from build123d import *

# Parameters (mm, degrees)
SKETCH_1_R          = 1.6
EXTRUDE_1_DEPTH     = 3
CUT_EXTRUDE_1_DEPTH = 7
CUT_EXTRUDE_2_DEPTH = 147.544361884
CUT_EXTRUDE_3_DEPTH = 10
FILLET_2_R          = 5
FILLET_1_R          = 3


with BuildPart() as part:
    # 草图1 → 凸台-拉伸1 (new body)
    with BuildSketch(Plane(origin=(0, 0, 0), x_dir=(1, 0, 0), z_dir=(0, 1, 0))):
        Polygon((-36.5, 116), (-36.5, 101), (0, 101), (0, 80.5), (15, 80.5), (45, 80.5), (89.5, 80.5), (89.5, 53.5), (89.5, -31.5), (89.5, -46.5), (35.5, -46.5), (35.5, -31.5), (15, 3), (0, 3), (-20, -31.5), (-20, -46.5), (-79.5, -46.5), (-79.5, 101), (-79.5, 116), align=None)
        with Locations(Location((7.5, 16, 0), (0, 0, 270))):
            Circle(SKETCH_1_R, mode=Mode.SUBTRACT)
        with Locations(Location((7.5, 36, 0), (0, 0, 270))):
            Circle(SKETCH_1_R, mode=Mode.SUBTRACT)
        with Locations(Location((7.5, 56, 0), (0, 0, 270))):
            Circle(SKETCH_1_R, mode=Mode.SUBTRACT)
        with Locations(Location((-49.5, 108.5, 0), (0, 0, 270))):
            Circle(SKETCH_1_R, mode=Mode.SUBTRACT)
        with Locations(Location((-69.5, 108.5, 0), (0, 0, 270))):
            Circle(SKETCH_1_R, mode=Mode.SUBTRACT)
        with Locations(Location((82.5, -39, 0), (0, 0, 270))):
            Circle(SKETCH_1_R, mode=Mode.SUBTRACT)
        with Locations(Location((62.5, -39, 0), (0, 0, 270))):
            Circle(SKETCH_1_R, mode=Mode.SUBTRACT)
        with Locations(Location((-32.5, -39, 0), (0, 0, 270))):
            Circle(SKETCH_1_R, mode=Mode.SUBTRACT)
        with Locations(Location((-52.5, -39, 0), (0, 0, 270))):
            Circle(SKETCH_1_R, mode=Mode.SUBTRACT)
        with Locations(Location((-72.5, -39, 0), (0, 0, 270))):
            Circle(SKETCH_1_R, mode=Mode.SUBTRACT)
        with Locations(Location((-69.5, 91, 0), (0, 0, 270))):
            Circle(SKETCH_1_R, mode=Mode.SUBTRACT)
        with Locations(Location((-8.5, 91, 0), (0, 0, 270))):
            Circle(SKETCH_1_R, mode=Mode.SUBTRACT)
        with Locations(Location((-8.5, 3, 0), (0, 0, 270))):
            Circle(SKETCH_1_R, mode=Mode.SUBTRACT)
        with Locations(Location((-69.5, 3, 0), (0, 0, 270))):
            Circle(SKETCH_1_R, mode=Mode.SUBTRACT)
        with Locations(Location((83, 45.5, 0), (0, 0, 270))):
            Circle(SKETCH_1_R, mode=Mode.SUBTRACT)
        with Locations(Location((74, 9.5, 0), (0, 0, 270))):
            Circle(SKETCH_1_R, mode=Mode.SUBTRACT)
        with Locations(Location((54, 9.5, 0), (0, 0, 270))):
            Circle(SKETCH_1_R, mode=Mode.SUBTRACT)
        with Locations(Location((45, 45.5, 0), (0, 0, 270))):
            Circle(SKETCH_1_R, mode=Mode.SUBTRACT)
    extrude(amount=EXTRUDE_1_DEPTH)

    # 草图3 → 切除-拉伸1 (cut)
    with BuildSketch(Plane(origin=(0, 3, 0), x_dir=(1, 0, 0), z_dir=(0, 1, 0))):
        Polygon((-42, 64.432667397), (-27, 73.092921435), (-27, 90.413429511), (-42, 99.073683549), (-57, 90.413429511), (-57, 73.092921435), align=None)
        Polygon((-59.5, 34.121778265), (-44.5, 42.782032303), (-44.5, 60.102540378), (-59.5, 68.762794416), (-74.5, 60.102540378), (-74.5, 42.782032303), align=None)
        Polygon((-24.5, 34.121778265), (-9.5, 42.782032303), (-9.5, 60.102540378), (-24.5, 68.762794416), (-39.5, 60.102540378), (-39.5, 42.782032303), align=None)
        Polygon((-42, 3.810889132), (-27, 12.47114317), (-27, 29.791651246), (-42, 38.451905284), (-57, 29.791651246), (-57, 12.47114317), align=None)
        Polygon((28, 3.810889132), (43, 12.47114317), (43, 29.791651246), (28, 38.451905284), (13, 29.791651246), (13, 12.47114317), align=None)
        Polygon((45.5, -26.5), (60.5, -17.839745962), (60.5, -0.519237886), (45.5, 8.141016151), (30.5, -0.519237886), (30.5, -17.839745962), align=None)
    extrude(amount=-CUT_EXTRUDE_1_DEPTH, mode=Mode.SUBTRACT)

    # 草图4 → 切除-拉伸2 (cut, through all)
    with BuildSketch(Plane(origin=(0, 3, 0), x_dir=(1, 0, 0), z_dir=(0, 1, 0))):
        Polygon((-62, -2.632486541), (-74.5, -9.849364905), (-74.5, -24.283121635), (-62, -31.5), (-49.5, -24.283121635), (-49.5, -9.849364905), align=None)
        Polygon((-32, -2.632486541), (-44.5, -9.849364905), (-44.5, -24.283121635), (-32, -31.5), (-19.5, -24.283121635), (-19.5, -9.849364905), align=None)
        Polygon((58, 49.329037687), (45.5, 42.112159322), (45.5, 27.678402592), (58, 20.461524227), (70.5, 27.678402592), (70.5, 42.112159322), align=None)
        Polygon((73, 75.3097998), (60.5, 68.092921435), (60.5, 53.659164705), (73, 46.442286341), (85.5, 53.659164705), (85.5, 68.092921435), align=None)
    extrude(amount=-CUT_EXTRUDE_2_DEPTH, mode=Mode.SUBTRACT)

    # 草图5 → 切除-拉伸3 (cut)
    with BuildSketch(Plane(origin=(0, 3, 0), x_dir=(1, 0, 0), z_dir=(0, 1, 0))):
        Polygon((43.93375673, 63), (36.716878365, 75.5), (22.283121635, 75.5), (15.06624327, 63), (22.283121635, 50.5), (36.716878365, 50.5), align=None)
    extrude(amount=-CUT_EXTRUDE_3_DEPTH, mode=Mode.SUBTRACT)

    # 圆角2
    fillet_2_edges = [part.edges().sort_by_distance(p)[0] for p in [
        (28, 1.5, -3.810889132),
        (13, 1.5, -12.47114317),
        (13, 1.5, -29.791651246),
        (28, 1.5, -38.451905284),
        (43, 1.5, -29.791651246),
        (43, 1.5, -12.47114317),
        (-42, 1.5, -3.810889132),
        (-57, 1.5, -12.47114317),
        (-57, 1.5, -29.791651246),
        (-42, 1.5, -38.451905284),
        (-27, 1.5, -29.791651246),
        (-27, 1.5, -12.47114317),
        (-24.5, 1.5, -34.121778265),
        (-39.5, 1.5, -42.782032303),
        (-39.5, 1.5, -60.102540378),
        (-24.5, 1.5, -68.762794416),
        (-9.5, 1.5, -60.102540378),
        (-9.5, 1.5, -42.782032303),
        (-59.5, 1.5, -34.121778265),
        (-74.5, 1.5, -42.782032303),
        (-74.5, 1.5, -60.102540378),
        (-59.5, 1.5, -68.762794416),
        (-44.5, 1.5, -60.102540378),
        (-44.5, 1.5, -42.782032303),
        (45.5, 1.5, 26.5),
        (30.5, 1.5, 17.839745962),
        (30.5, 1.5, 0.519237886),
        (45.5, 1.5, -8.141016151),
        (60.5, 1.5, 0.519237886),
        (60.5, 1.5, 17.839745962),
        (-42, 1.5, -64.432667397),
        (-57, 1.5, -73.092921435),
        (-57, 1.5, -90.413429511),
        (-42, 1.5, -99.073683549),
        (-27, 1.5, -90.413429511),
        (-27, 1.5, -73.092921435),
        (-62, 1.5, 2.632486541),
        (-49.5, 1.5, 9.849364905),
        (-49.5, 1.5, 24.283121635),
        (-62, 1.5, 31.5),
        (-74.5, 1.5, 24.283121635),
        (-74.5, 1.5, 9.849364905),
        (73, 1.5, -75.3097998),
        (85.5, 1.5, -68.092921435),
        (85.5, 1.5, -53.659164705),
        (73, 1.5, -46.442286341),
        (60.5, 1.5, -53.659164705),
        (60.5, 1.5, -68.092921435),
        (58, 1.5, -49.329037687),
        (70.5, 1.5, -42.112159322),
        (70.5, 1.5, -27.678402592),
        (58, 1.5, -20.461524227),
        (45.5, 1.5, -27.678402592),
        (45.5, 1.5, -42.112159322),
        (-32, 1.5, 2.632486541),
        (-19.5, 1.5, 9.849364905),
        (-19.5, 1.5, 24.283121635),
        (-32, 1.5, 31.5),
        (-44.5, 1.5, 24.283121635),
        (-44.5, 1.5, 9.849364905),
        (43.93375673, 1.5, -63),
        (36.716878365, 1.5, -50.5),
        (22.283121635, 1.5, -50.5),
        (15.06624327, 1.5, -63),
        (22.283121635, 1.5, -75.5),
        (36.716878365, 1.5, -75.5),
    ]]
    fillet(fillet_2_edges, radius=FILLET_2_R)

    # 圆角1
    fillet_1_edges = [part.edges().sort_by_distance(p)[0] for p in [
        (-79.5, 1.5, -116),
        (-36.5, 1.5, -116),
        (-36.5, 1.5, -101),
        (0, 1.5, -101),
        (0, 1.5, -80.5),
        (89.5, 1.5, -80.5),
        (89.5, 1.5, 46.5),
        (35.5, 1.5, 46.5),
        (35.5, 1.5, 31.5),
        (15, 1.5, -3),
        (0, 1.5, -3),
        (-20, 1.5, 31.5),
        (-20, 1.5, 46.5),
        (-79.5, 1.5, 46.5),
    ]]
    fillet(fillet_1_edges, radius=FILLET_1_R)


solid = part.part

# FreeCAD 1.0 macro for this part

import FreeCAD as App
import Part
import Sketcher
from FreeCAD import Vector
Q = App.Units.Quantity


def edges_at(feature, points):
    """Names of the edges that pass closest to the given points."""
    edges = feature.Shape.Edges
    near = lambda p: min(range(len(edges)), key=lambda i: edges[i].distToShape(Part.Vertex(*p))[0])
    return sorted({f"Edge{near(p) + 1}" for p in points})

doc = App.newDocument("Part")
body = doc.addObject("PartDesign::Body", "Body")

# Sketch on XZ plane
sketch1 = body.newObject("Sketcher::SketchObject", "Sketch")
sketch1.AttachmentSupport = (doc.getObject("XZ_Plane"), [""])
sketch1.MapMode = "FlatFace"
sketch1.addGeometry(Part.LineSegment(Vector(-36.5, -101, 0), Vector(-36.5, -116, 0)), False)
sketch1.addGeometry(Part.LineSegment(Vector(-36.5, -116, 0), Vector(-79.5, -116, 0)), False)
sketch1.addGeometry(Part.LineSegment(Vector(-79.5, -116, 0), Vector(-79.5, 46.5, 0)), False)
sketch1.addGeometry(Part.LineSegment(Vector(-79.5, 46.5, 0), Vector(-20, 46.5, 0)), False)
sketch1.addGeometry(Part.LineSegment(Vector(-20, 46.5, 0), Vector(-20, 31.5, 0)), False)
sketch1.addGeometry(Part.LineSegment(Vector(-20, 31.5, 0), Vector(0, -3, 0)), False)
sketch1.addGeometry(Part.LineSegment(Vector(0, -3, 0), Vector(15, -3, 0)), False)
sketch1.addGeometry(Part.LineSegment(Vector(15, -3, 0), Vector(35.5, 31.5, 0)), False)
sketch1.addGeometry(Part.LineSegment(Vector(35.5, 31.5, 0), Vector(35.5, 46.5, 0)), False)
sketch1.addGeometry(Part.LineSegment(Vector(35.5, 46.5, 0), Vector(89.5, 46.5, 0)), False)
sketch1.addGeometry(Part.LineSegment(Vector(89.5, 46.5, 0), Vector(89.5, -80.5, 0)), False)
sketch1.addGeometry(Part.LineSegment(Vector(89.5, -80.5, 0), Vector(0, -80.5, 0)), False)
sketch1.addGeometry(Part.LineSegment(Vector(0, -80.5, 0), Vector(0, -101, 0)), False)
sketch1.addGeometry(Part.LineSegment(Vector(0, -101, 0), Vector(-36.5, -101, 0)), False)
sketch1.addGeometry(Part.Circle(Vector(82.5, 39, 0), Vector(0, 0, 1), 1.6), False)
sketch1.addGeometry(Part.Circle(Vector(62.5, 39, 0), Vector(0, 0, 1), 1.6), False)
sketch1.addGeometry(Part.Circle(Vector(74, -9.5, 0), Vector(0, 0, 1), 1.6), False)
sketch1.addGeometry(Part.Circle(Vector(54, -9.5, 0), Vector(0, 0, 1), 1.6), False)
sketch1.addGeometry(Part.Circle(Vector(7.5, -16, 0), Vector(0, 0, 1), 1.6), False)
sketch1.addGeometry(Part.Circle(Vector(-32.5, 39, 0), Vector(0, 0, 1), 1.6), False)
sketch1.addGeometry(Part.Circle(Vector(-52.5, 39, 0), Vector(0, 0, 1), 1.6), False)
sketch1.addGeometry(Part.Circle(Vector(-72.5, 39, 0), Vector(0, 0, 1), 1.6), False)
sketch1.addGeometry(Part.Circle(Vector(-8.5, -3, 0), Vector(0, 0, 1), 1.6), False)
sketch1.addGeometry(Part.Circle(Vector(-69.5, -3, 0), Vector(0, 0, 1), 1.6), False)
sketch1.addGeometry(Part.Circle(Vector(83, -45.5, 0), Vector(0, 0, 1), 1.6), False)
sketch1.addGeometry(Part.Circle(Vector(45, -45.5, 0), Vector(0, 0, 1), 1.6), False)
sketch1.addGeometry(Part.Circle(Vector(7.5, -36, 0), Vector(0, 0, 1), 1.6), False)
sketch1.addGeometry(Part.Circle(Vector(7.5, -56, 0), Vector(0, 0, 1), 1.6), False)
sketch1.addGeometry(Part.Circle(Vector(-8.5, -91, 0), Vector(0, 0, 1), 1.6), False)
sketch1.addGeometry(Part.Circle(Vector(-69.5, -91, 0), Vector(0, 0, 1), 1.6), False)
sketch1.addGeometry(Part.Circle(Vector(-49.5, -108.5, 0), Vector(0, 0, 1), 1.6), False)
sketch1.addGeometry(Part.Circle(Vector(-69.5, -108.5, 0), Vector(0, 0, 1), 1.6), False)
sketch1.addConstraint(Sketcher.Constraint("Coincident", 0, 2, 1, 1))
sketch1.addConstraint(Sketcher.Constraint("Coincident", 1, 2, 2, 1))
sketch1.addConstraint(Sketcher.Constraint("Coincident", 2, 2, 3, 1))
sketch1.addConstraint(Sketcher.Constraint("Coincident", 3, 2, 4, 1))
sketch1.addConstraint(Sketcher.Constraint("Coincident", 4, 2, 5, 1))
sketch1.addConstraint(Sketcher.Constraint("Coincident", 5, 2, 6, 1))
sketch1.addConstraint(Sketcher.Constraint("Coincident", 6, 2, 7, 1))
sketch1.addConstraint(Sketcher.Constraint("Coincident", 7, 2, 8, 1))
sketch1.addConstraint(Sketcher.Constraint("Coincident", 8, 2, 9, 1))
sketch1.addConstraint(Sketcher.Constraint("Coincident", 9, 2, 10, 1))
sketch1.addConstraint(Sketcher.Constraint("Coincident", 10, 2, 11, 1))
sketch1.addConstraint(Sketcher.Constraint("Coincident", 11, 2, 12, 1))
sketch1.addConstraint(Sketcher.Constraint("Coincident", 12, 2, 13, 1))
sketch1.addConstraint(Sketcher.Constraint("Coincident", 13, 2, 0, 1))
sketch1.addConstraint(Sketcher.Constraint("Vertical", 0))
sketch1.addConstraint(Sketcher.Constraint("Horizontal", 1))
sketch1.addConstraint(Sketcher.Constraint("Vertical", 2))
sketch1.addConstraint(Sketcher.Constraint("Horizontal", 3))
sketch1.addConstraint(Sketcher.Constraint("Vertical", 4))
sketch1.addConstraint(Sketcher.Constraint("Horizontal", 6))
sketch1.addConstraint(Sketcher.Constraint("Vertical", 8))
sketch1.addConstraint(Sketcher.Constraint("Horizontal", 9))
sketch1.addConstraint(Sketcher.Constraint("Vertical", 10))
sketch1.addConstraint(Sketcher.Constraint("Horizontal", 11))
sketch1.addConstraint(Sketcher.Constraint("Vertical", 12))
sketch1.addConstraint(Sketcher.Constraint("Horizontal", 13))
sketch1.addConstraint(Sketcher.Constraint("Equal", 14, 15))
sketch1.addConstraint(Sketcher.Constraint("Equal", 15, 16))
sketch1.addConstraint(Sketcher.Constraint("Equal", 16, 17))
sketch1.addConstraint(Sketcher.Constraint("Equal", 17, 18))
sketch1.addConstraint(Sketcher.Constraint("Equal", 18, 19))
sketch1.addConstraint(Sketcher.Constraint("Equal", 19, 20))
sketch1.addConstraint(Sketcher.Constraint("Equal", 20, 21))
sketch1.addConstraint(Sketcher.Constraint("Equal", 21, 22))
sketch1.addConstraint(Sketcher.Constraint("Equal", 22, 23))
sketch1.addConstraint(Sketcher.Constraint("Equal", 23, 24))
sketch1.addConstraint(Sketcher.Constraint("Equal", 24, 25))
sketch1.addConstraint(Sketcher.Constraint("Equal", 25, 26))
sketch1.addConstraint(Sketcher.Constraint("Equal", 26, 27))
sketch1.addConstraint(Sketcher.Constraint("Equal", 27, 28))
sketch1.addConstraint(Sketcher.Constraint("Equal", 28, 29))
sketch1.addConstraint(Sketcher.Constraint("Equal", 29, 30))
sketch1.addConstraint(Sketcher.Constraint("Equal", 30, 31))
sketch1.addConstraint(Sketcher.Constraint("PointOnObject", 5, 2, -2))
sketch1.addConstraint(Sketcher.Constraint("PointOnObject", 11, 2, -2))
sketch1.addConstraint(Sketcher.Constraint("Horizontal", 14, 3, 15, 3))
sketch1.addConstraint(Sketcher.Constraint("Horizontal", 16, 3, 17, 3))
sketch1.addConstraint(Sketcher.Constraint("Horizontal", 15, 3, 19, 3))
sketch1.addConstraint(Sketcher.Constraint("Horizontal", 19, 3, 20, 3))
sketch1.addConstraint(Sketcher.Constraint("Horizontal", 20, 3, 21, 3))
sketch1.addConstraint(Sketcher.Constraint("Horizontal", 22, 3, 23, 3))
sketch1.addConstraint(Sketcher.Constraint("Horizontal", 24, 3, 25, 3))
sketch1.addConstraint(Sketcher.Constraint("Horizontal", 28, 3, 29, 3))
sketch1.addConstraint(Sketcher.Constraint("Horizontal", 30, 3, 31, 3))
sketch1.addConstraint(Sketcher.Constraint("Horizontal", 23, 3, 5, 2))
sketch1.addConstraint(Sketcher.Constraint("Horizontal", 4, 2, 7, 2))
sketch1.addConstraint(Sketcher.Constraint("Horizontal", 3, 2, 8, 2))
sketch1.addConstraint(Sketcher.Constraint("Vertical", 18, 3, 26, 3))
sketch1.addConstraint(Sketcher.Constraint("Vertical", 26, 3, 27, 3))
sketch1.addConstraint(Sketcher.Constraint("Vertical", 22, 3, 28, 3))
sketch1.addConstraint(Sketcher.Constraint("Vertical", 23, 3, 29, 3))
sketch1.addConstraint(Sketcher.Constraint("Vertical", 29, 3, 31, 3))
sketch1.addConstraint(Sketcher.Constraint("Equal", 6, 0))
sketch1.addConstraint(Sketcher.Constraint("Equal", 0, 4))
sketch1.addConstraint(Sketcher.Constraint("Diameter", 14, 3.2))
sketch1.addConstraint(Sketcher.Constraint("DistanceX", 1, 2, 1, 1, 43.0))
sketch1.addConstraint(Sketcher.Constraint("DistanceX", 6, 1, 6, 2, 15.0))
sketch1.addConstraint(Sketcher.Constraint("DistanceX", 9, 1, 9, 2, 54.0))
sketch1.addConstraint(Sketcher.Constraint("DistanceY", 10, 2, 10, 1, 127.0))
sketch1.addConstraint(Sketcher.Constraint("DistanceX", 3, 1, 3, 2, 59.5))
sketch1.addConstraint(Sketcher.Constraint("DistanceX", 11, 2, 11, 1, 89.5))
sketch1.addConstraint(Sketcher.Constraint("DistanceX", 13, 2, 13, 1, 36.5))
sketch1.addConstraint(Sketcher.Constraint("DistanceY", 2, 1, 2, 2, 162.5))
sketch1.addConstraint(Sketcher.Constraint("DistanceY", -1, 1, 14, 3, 39.0))
sketch1.addConstraint(Sketcher.Constraint("DistanceX", -1, 1, 16, 3, 74.0))
sketch1.addConstraint(Sketcher.Constraint("DistanceX", -1, 1, 17, 3, 54.0))
sketch1.addConstraint(Sketcher.Constraint("DistanceY", 18, 3, -1, 1, 16.0))
sketch1.addConstraint(Sketcher.Constraint("DistanceY", 22, 3, -1, 1, 3.0))
sketch1.addConstraint(Sketcher.Constraint("DistanceX", -1, 1, 24, 3, 83.0))
sketch1.addConstraint(Sketcher.Constraint("DistanceX", -1, 1, 25, 3, 45.0))
sketch1.addConstraint(Sketcher.Constraint("DistanceY", 26, 3, -1, 1, 36.0))
sketch1.addConstraint(Sketcher.Constraint("DistanceY", 27, 3, -1, 1, 56.0))
sketch1.addConstraint(Sketcher.Constraint("DistanceY", 28, 3, -1, 1, 91.0))
sketch1.addConstraint(Sketcher.Constraint("DistanceY", 0, 2, -1, 1, 116.0))
sketch1.addConstraint(Sketcher.Constraint("DistanceX", 15, 3, 14, 3, 20.0))
sketch1.addConstraint(Sketcher.Constraint("DistanceX", 18, 3, 15, 3, 55.0))
sketch1.addConstraint(Sketcher.Constraint("DistanceX", 19, 3, 18, 3, 40.0))
sketch1.addConstraint(Sketcher.Constraint("DistanceX", 20, 3, 19, 3, 20.0))
sketch1.addConstraint(Sketcher.Constraint("DistanceX", 21, 3, 20, 3, 20.0))
sketch1.addConstraint(Sketcher.Constraint("DistanceX", 22, 3, 18, 3, 16.0))
sketch1.addConstraint(Sketcher.Constraint("DistanceX", 21, 3, 23, 3, 3.0))
sketch1.addConstraint(Sketcher.Constraint("DistanceY", 24, 3, 16, 3, 36.0))
sketch1.addConstraint(Sketcher.Constraint("DistanceX", 29, 3, 30, 3, 20.0))
sketch1.addConstraint(Sketcher.Constraint("DistanceX", 30, 3, 0, 2, 13.0))
sketch1.addConstraint(Sketcher.Constraint("DistanceY", 17, 3, 7, 2, 41.0))
sketch1.addConstraint(Sketcher.Constraint("DistanceY", 30, 3, 11, 2, 28.0))
pad1 = body.newObject("PartDesign::Pad", "Pad")
pad1.Profile = sketch1
pad1.Length = 3
pad1.Reversed = True

# Sketch on XZ plane
sketch2 = body.newObject("Sketcher::SketchObject", "Sketch001")
sketch2.AttachmentSupport = (doc.getObject("XZ_Plane"), [""])
sketch2.MapMode = "FlatFace"
sketch2.AttachmentOffset = App.Placement(Vector(0, 0, -3), App.Rotation())
sketch2.addGeometry(Part.LineSegment(Vector(-42, -64, 0), Vector(-27, -73, 0)), False)
sketch2.addGeometry(Part.LineSegment(Vector(-27, -73, 0), Vector(-27, -90, 0)), False)
sketch2.addGeometry(Part.LineSegment(Vector(-27, -90, 0), Vector(-42, -99, 0)), False)
sketch2.addGeometry(Part.LineSegment(Vector(-42, -99, 0), Vector(-57, -90, 0)), False)
sketch2.addGeometry(Part.LineSegment(Vector(-57, -90, 0), Vector(-57, -73, 0)), False)
sketch2.addGeometry(Part.LineSegment(Vector(-57, -73, 0), Vector(-42, -64, 0)), False)
sketch2.addGeometry(Part.LineSegment(Vector(-60, -34, 0), Vector(-44, -43, 0)), False)
sketch2.addGeometry(Part.LineSegment(Vector(-44, -43, 0), Vector(-44, -60, 0)), False)
sketch2.addGeometry(Part.LineSegment(Vector(-44, -60, 0), Vector(-60, -69, 0)), False)
sketch2.addGeometry(Part.LineSegment(Vector(-60, -69, 0), Vector(-74, -60, 0)), False)
sketch2.addGeometry(Part.LineSegment(Vector(-74, -60, 0), Vector(-74, -43, 0)), False)
sketch2.addGeometry(Part.LineSegment(Vector(-74, -43, 0), Vector(-60, -34, 0)), False)
sketch2.addGeometry(Part.LineSegment(Vector(-24, -34, 0), Vector(-10, -43, 0)), False)
sketch2.addGeometry(Part.LineSegment(Vector(-10, -43, 0), Vector(-10, -60, 0)), False)
sketch2.addGeometry(Part.LineSegment(Vector(-10, -60, 0), Vector(-24, -69, 0)), False)
sketch2.addGeometry(Part.LineSegment(Vector(-24, -69, 0), Vector(-40, -60, 0)), False)
sketch2.addGeometry(Part.LineSegment(Vector(-40, -60, 0), Vector(-40, -43, 0)), False)
sketch2.addGeometry(Part.LineSegment(Vector(-40, -43, 0), Vector(-24, -34, 0)), False)
sketch2.addGeometry(Part.LineSegment(Vector(-42, -4, 0), Vector(-27, -12, 0)), False)
sketch2.addGeometry(Part.LineSegment(Vector(-27, -12, 0), Vector(-27, -30, 0)), False)
sketch2.addGeometry(Part.LineSegment(Vector(-27, -30, 0), Vector(-42, -38, 0)), False)
sketch2.addGeometry(Part.LineSegment(Vector(-42, -38, 0), Vector(-57, -30, 0)), False)
sketch2.addGeometry(Part.LineSegment(Vector(-57, -30, 0), Vector(-57, -12, 0)), False)
sketch2.addGeometry(Part.LineSegment(Vector(-57, -12, 0), Vector(-42, -4, 0)), False)
sketch2.addGeometry(Part.LineSegment(Vector(28, -4, 0), Vector(43, -12, 0)), False)
sketch2.addGeometry(Part.LineSegment(Vector(43, -12, 0), Vector(43, -30, 0)), False)
sketch2.addGeometry(Part.LineSegment(Vector(43, -30, 0), Vector(28, -38, 0)), False)
sketch2.addGeometry(Part.LineSegment(Vector(28, -38, 0), Vector(13, -30, 0)), False)
sketch2.addGeometry(Part.LineSegment(Vector(13, -30, 0), Vector(13, -12, 0)), False)
sketch2.addGeometry(Part.LineSegment(Vector(13, -12, 0), Vector(28, -4, 0)), False)
sketch2.addGeometry(Part.LineSegment(Vector(46, 26, 0), Vector(60, 18, 0)), False)
sketch2.addGeometry(Part.LineSegment(Vector(60, 18, 0), Vector(60, 1, 0)), False)
sketch2.addGeometry(Part.LineSegment(Vector(60, 1, 0), Vector(46, -8, 0)), False)
sketch2.addGeometry(Part.LineSegment(Vector(46, -8, 0), Vector(30, 1, 0)), False)
sketch2.addGeometry(Part.LineSegment(Vector(30, 1, 0), Vector(30, 18, 0)), False)
sketch2.addGeometry(Part.LineSegment(Vector(30, 18, 0), Vector(46, 26, 0)), False)
sketch2.addConstraint(Sketcher.Constraint("Coincident", 0, 2, 1, 1))
sketch2.addConstraint(Sketcher.Constraint("Coincident", 1, 2, 2, 1))
sketch2.addConstraint(Sketcher.Constraint("Coincident", 2, 2, 3, 1))
sketch2.addConstraint(Sketcher.Constraint("Coincident", 3, 2, 4, 1))
sketch2.addConstraint(Sketcher.Constraint("Coincident", 4, 2, 5, 1))
sketch2.addConstraint(Sketcher.Constraint("Coincident", 5, 2, 0, 1))
sketch2.addConstraint(Sketcher.Constraint("Coincident", 6, 2, 7, 1))
sketch2.addConstraint(Sketcher.Constraint("Coincident", 7, 2, 8, 1))
sketch2.addConstraint(Sketcher.Constraint("Coincident", 8, 2, 9, 1))
sketch2.addConstraint(Sketcher.Constraint("Coincident", 9, 2, 10, 1))
sketch2.addConstraint(Sketcher.Constraint("Coincident", 10, 2, 11, 1))
sketch2.addConstraint(Sketcher.Constraint("Coincident", 11, 2, 6, 1))
sketch2.addConstraint(Sketcher.Constraint("Coincident", 12, 2, 13, 1))
sketch2.addConstraint(Sketcher.Constraint("Coincident", 13, 2, 14, 1))
sketch2.addConstraint(Sketcher.Constraint("Coincident", 14, 2, 15, 1))
sketch2.addConstraint(Sketcher.Constraint("Coincident", 15, 2, 16, 1))
sketch2.addConstraint(Sketcher.Constraint("Coincident", 16, 2, 17, 1))
sketch2.addConstraint(Sketcher.Constraint("Coincident", 17, 2, 12, 1))
sketch2.addConstraint(Sketcher.Constraint("Coincident", 18, 2, 19, 1))
sketch2.addConstraint(Sketcher.Constraint("Coincident", 19, 2, 20, 1))
sketch2.addConstraint(Sketcher.Constraint("Coincident", 20, 2, 21, 1))
sketch2.addConstraint(Sketcher.Constraint("Coincident", 21, 2, 22, 1))
sketch2.addConstraint(Sketcher.Constraint("Coincident", 22, 2, 23, 1))
sketch2.addConstraint(Sketcher.Constraint("Coincident", 23, 2, 18, 1))
sketch2.addConstraint(Sketcher.Constraint("Coincident", 24, 2, 25, 1))
sketch2.addConstraint(Sketcher.Constraint("Coincident", 25, 2, 26, 1))
sketch2.addConstraint(Sketcher.Constraint("Coincident", 26, 2, 27, 1))
sketch2.addConstraint(Sketcher.Constraint("Coincident", 27, 2, 28, 1))
sketch2.addConstraint(Sketcher.Constraint("Coincident", 28, 2, 29, 1))
sketch2.addConstraint(Sketcher.Constraint("Coincident", 29, 2, 24, 1))
sketch2.addConstraint(Sketcher.Constraint("Coincident", 30, 2, 31, 1))
sketch2.addConstraint(Sketcher.Constraint("Coincident", 31, 2, 32, 1))
sketch2.addConstraint(Sketcher.Constraint("Coincident", 32, 2, 33, 1))
sketch2.addConstraint(Sketcher.Constraint("Coincident", 33, 2, 34, 1))
sketch2.addConstraint(Sketcher.Constraint("Coincident", 34, 2, 35, 1))
sketch2.addConstraint(Sketcher.Constraint("Coincident", 35, 2, 30, 1))
sketch2.addConstraint(Sketcher.Constraint("Vertical", 1))
sketch2.addConstraint(Sketcher.Constraint("Vertical", 4))
sketch2.addConstraint(Sketcher.Constraint("Vertical", 7))
sketch2.addConstraint(Sketcher.Constraint("Vertical", 10))
sketch2.addConstraint(Sketcher.Constraint("Vertical", 13))
sketch2.addConstraint(Sketcher.Constraint("Vertical", 16))
sketch2.addConstraint(Sketcher.Constraint("Vertical", 19))
sketch2.addConstraint(Sketcher.Constraint("Vertical", 22))
sketch2.addConstraint(Sketcher.Constraint("Vertical", 25))
sketch2.addConstraint(Sketcher.Constraint("Vertical", 28))
sketch2.addConstraint(Sketcher.Constraint("Vertical", 31))
sketch2.addConstraint(Sketcher.Constraint("Vertical", 34))
sketch2.addConstraint(Sketcher.Constraint("Parallel", 0, 3))
sketch2.addConstraint(Sketcher.Constraint("Parallel", 2, 5))
sketch2.addConstraint(Sketcher.Constraint("Parallel", 3, 6))
sketch2.addConstraint(Sketcher.Constraint("Parallel", 5, 8))
sketch2.addConstraint(Sketcher.Constraint("Parallel", 6, 9))
sketch2.addConstraint(Sketcher.Constraint("Parallel", 8, 11))
sketch2.addConstraint(Sketcher.Constraint("Parallel", 9, 12))
sketch2.addConstraint(Sketcher.Constraint("Parallel", 11, 14))
sketch2.addConstraint(Sketcher.Constraint("Parallel", 12, 15))
sketch2.addConstraint(Sketcher.Constraint("Parallel", 14, 17))
sketch2.addConstraint(Sketcher.Constraint("Parallel", 15, 18))
sketch2.addConstraint(Sketcher.Constraint("Parallel", 17, 20))
sketch2.addConstraint(Sketcher.Constraint("Parallel", 18, 21))
sketch2.addConstraint(Sketcher.Constraint("Parallel", 20, 23))
sketch2.addConstraint(Sketcher.Constraint("Parallel", 21, 24))
sketch2.addConstraint(Sketcher.Constraint("Parallel", 23, 26))
sketch2.addConstraint(Sketcher.Constraint("Parallel", 24, 27))
sketch2.addConstraint(Sketcher.Constraint("Parallel", 26, 29))
sketch2.addConstraint(Sketcher.Constraint("Parallel", 27, 30))
sketch2.addConstraint(Sketcher.Constraint("Parallel", 29, 32))
sketch2.addConstraint(Sketcher.Constraint("Parallel", 30, 33))
sketch2.addConstraint(Sketcher.Constraint("Parallel", 32, 35))
sketch2.addConstraint(Sketcher.Constraint("Horizontal", 1, 2, 3, 2))
sketch2.addConstraint(Sketcher.Constraint("Horizontal", 0, 2, 4, 2))
sketch2.addConstraint(Sketcher.Constraint("Horizontal", 7, 2, 9, 2))
sketch2.addConstraint(Sketcher.Constraint("Horizontal", 6, 2, 10, 2))
sketch2.addConstraint(Sketcher.Constraint("Horizontal", 10, 2, 12, 2))
sketch2.addConstraint(Sketcher.Constraint("Horizontal", 9, 2, 13, 2))
sketch2.addConstraint(Sketcher.Constraint("Horizontal", 8, 2, 14, 2))
sketch2.addConstraint(Sketcher.Constraint("Horizontal", 13, 2, 15, 2))
sketch2.addConstraint(Sketcher.Constraint("Horizontal", 12, 2, 16, 2))
sketch2.addConstraint(Sketcher.Constraint("Horizontal", 19, 2, 21, 2))
sketch2.addConstraint(Sketcher.Constraint("Horizontal", 18, 2, 22, 2))
sketch2.addConstraint(Sketcher.Constraint("Horizontal", 22, 2, 24, 2))
sketch2.addConstraint(Sketcher.Constraint("Horizontal", 21, 2, 25, 2))
sketch2.addConstraint(Sketcher.Constraint("Horizontal", 20, 2, 26, 2))
sketch2.addConstraint(Sketcher.Constraint("Horizontal", 25, 2, 27, 2))
sketch2.addConstraint(Sketcher.Constraint("Horizontal", 24, 2, 28, 2))
sketch2.addConstraint(Sketcher.Constraint("Horizontal", 31, 2, 33, 2))
sketch2.addConstraint(Sketcher.Constraint("Horizontal", 30, 2, 34, 2))
sketch2.addConstraint(Sketcher.Constraint("Vertical", 2, 2, 5, 2))
sketch2.addConstraint(Sketcher.Constraint("Vertical", 1, 2, 18, 2))
sketch2.addConstraint(Sketcher.Constraint("Vertical", 5, 2, 20, 2))
sketch2.addConstraint(Sketcher.Constraint("Equal", 4, 7))
sketch2.addConstraint(Sketcher.Constraint("Equal", 16, 19))
sketch2.addConstraint(Sketcher.Constraint("Equal", 28, 31))
sketch2.addConstraint(Sketcher.Constraint("Equal", 5, 6))
sketch2.addConstraint(Sketcher.Constraint("Equal", 29, 30))
sketch2.addConstraint(Sketcher.Constraint("Angle", 0, Q("-30 deg")))
sketch2.addConstraint(Sketcher.Constraint("DistanceX", 0, 2, -1, 1, 27.0))
sketch2.addConstraint(Sketcher.Constraint("DistanceX", 2, 2, -1, 1, 42.0))
sketch2.addConstraint(Sketcher.Constraint("DistanceX", -1, 1, 24, 2, 43.0))
sketch2.addConstraint(Sketcher.Constraint("DistanceX", 6, 2, 12, 2, 35.0))
sketch2.addConstraint(Sketcher.Constraint("DistanceX", 6, 2, -1, 1, 44.5))
sketch2.addConstraint(Sketcher.Constraint("DistanceX", -1, 1, 30, 2, 60.5))
sketch2.addConstraint(Sketcher.Constraint("DistanceY", -1, 1, 35, 2, 26.5))
sketch2.addConstraint(Sketcher.Constraint("DistanceY", 1, 2, 1, 1, 17.320508))
sketch2.addConstraint(Sketcher.Constraint("DistanceY", 0, 2, -1, 1, 73.092921))
sketch2.addConstraint(Sketcher.Constraint("DistanceY", 7, 2, -1, 1, 60.10254))
sketch2.addConstraint(Sketcher.Constraint("DistanceY", 19, 2, -1, 1, 29.791651))
pocket1 = body.newObject("PartDesign::Pocket", "Pocket")
pocket1.Profile = sketch2
pocket1.Length = 7
pocket1.Reversed = True

# Sketch on XZ plane
sketch3 = body.newObject("Sketcher::SketchObject", "Sketch002")
sketch3.AttachmentSupport = (doc.getObject("XZ_Plane"), [""])
sketch3.MapMode = "FlatFace"
sketch3.AttachmentOffset = App.Placement(Vector(0, 0, -3), App.Rotation())
sketch3.addGeometry(Part.LineSegment(Vector(-62, 3, 0), Vector(-74, 10, 0)), False)
sketch3.addGeometry(Part.LineSegment(Vector(-74, 10, 0), Vector(-74, 24, 0)), False)
sketch3.addGeometry(Part.LineSegment(Vector(-74, 24, 0), Vector(-62, 32, 0)), False)
sketch3.addGeometry(Part.LineSegment(Vector(-62, 32, 0), Vector(-50, 24, 0)), False)
sketch3.addGeometry(Part.LineSegment(Vector(-50, 24, 0), Vector(-50, 10, 0)), False)
sketch3.addGeometry(Part.LineSegment(Vector(-50, 10, 0), Vector(-62, 3, 0)), False)
sketch3.addGeometry(Part.LineSegment(Vector(-32, 3, 0), Vector(-44, 10, 0)), False)
sketch3.addGeometry(Part.LineSegment(Vector(-44, 10, 0), Vector(-44, 24, 0)), False)
sketch3.addGeometry(Part.LineSegment(Vector(-44, 24, 0), Vector(-32, 32, 0)), False)
sketch3.addGeometry(Part.LineSegment(Vector(-32, 32, 0), Vector(-20, 24, 0)), False)
sketch3.addGeometry(Part.LineSegment(Vector(-20, 24, 0), Vector(-20, 10, 0)), False)
sketch3.addGeometry(Part.LineSegment(Vector(-20, 10, 0), Vector(-32, 3, 0)), False)
sketch3.addGeometry(Part.LineSegment(Vector(58, -49, 0), Vector(46, -42, 0)), False)
sketch3.addGeometry(Part.LineSegment(Vector(46, -42, 0), Vector(46, -28, 0)), False)
sketch3.addGeometry(Part.LineSegment(Vector(46, -28, 0), Vector(58, -20, 0)), False)
sketch3.addGeometry(Part.LineSegment(Vector(58, -20, 0), Vector(70, -28, 0)), False)
sketch3.addGeometry(Part.LineSegment(Vector(70, -28, 0), Vector(70, -42, 0)), False)
sketch3.addGeometry(Part.LineSegment(Vector(70, -42, 0), Vector(58, -49, 0)), False)
sketch3.addGeometry(Part.LineSegment(Vector(73, -75, 0), Vector(60, -68, 0)), False)
sketch3.addGeometry(Part.LineSegment(Vector(60, -68, 0), Vector(60, -54, 0)), False)
sketch3.addGeometry(Part.LineSegment(Vector(60, -54, 0), Vector(73, -46, 0)), False)
sketch3.addGeometry(Part.LineSegment(Vector(73, -46, 0), Vector(86, -54, 0)), False)
sketch3.addGeometry(Part.LineSegment(Vector(86, -54, 0), Vector(86, -68, 0)), False)
sketch3.addGeometry(Part.LineSegment(Vector(86, -68, 0), Vector(73, -75, 0)), False)
sketch3.addConstraint(Sketcher.Constraint("Coincident", 0, 2, 1, 1))
sketch3.addConstraint(Sketcher.Constraint("Coincident", 1, 2, 2, 1))
sketch3.addConstraint(Sketcher.Constraint("Coincident", 2, 2, 3, 1))
sketch3.addConstraint(Sketcher.Constraint("Coincident", 3, 2, 4, 1))
sketch3.addConstraint(Sketcher.Constraint("Coincident", 4, 2, 5, 1))
sketch3.addConstraint(Sketcher.Constraint("Coincident", 5, 2, 0, 1))
sketch3.addConstraint(Sketcher.Constraint("Coincident", 6, 2, 7, 1))
sketch3.addConstraint(Sketcher.Constraint("Coincident", 7, 2, 8, 1))
sketch3.addConstraint(Sketcher.Constraint("Coincident", 8, 2, 9, 1))
sketch3.addConstraint(Sketcher.Constraint("Coincident", 9, 2, 10, 1))
sketch3.addConstraint(Sketcher.Constraint("Coincident", 10, 2, 11, 1))
sketch3.addConstraint(Sketcher.Constraint("Coincident", 11, 2, 6, 1))
sketch3.addConstraint(Sketcher.Constraint("Coincident", 12, 2, 13, 1))
sketch3.addConstraint(Sketcher.Constraint("Coincident", 13, 2, 14, 1))
sketch3.addConstraint(Sketcher.Constraint("Coincident", 14, 2, 15, 1))
sketch3.addConstraint(Sketcher.Constraint("Coincident", 15, 2, 16, 1))
sketch3.addConstraint(Sketcher.Constraint("Coincident", 16, 2, 17, 1))
sketch3.addConstraint(Sketcher.Constraint("Coincident", 17, 2, 12, 1))
sketch3.addConstraint(Sketcher.Constraint("Coincident", 18, 2, 19, 1))
sketch3.addConstraint(Sketcher.Constraint("Coincident", 19, 2, 20, 1))
sketch3.addConstraint(Sketcher.Constraint("Coincident", 20, 2, 21, 1))
sketch3.addConstraint(Sketcher.Constraint("Coincident", 21, 2, 22, 1))
sketch3.addConstraint(Sketcher.Constraint("Coincident", 22, 2, 23, 1))
sketch3.addConstraint(Sketcher.Constraint("Coincident", 23, 2, 18, 1))
sketch3.addConstraint(Sketcher.Constraint("Vertical", 1))
sketch3.addConstraint(Sketcher.Constraint("Vertical", 4))
sketch3.addConstraint(Sketcher.Constraint("Vertical", 7))
sketch3.addConstraint(Sketcher.Constraint("Vertical", 10))
sketch3.addConstraint(Sketcher.Constraint("Vertical", 13))
sketch3.addConstraint(Sketcher.Constraint("Vertical", 16))
sketch3.addConstraint(Sketcher.Constraint("Vertical", 19))
sketch3.addConstraint(Sketcher.Constraint("Vertical", 22))
sketch3.addConstraint(Sketcher.Constraint("Parallel", 0, 3))
sketch3.addConstraint(Sketcher.Constraint("Parallel", 2, 5))
sketch3.addConstraint(Sketcher.Constraint("Parallel", 3, 6))
sketch3.addConstraint(Sketcher.Constraint("Parallel", 5, 8))
sketch3.addConstraint(Sketcher.Constraint("Parallel", 6, 9))
sketch3.addConstraint(Sketcher.Constraint("Parallel", 8, 11))
sketch3.addConstraint(Sketcher.Constraint("Parallel", 9, 12))
sketch3.addConstraint(Sketcher.Constraint("Parallel", 11, 14))
sketch3.addConstraint(Sketcher.Constraint("Parallel", 12, 15))
sketch3.addConstraint(Sketcher.Constraint("Parallel", 14, 17))
sketch3.addConstraint(Sketcher.Constraint("Parallel", 15, 18))
sketch3.addConstraint(Sketcher.Constraint("Parallel", 17, 20))
sketch3.addConstraint(Sketcher.Constraint("Parallel", 18, 21))
sketch3.addConstraint(Sketcher.Constraint("Parallel", 20, 23))
sketch3.addConstraint(Sketcher.Constraint("Horizontal", 1, 2, 3, 2))
sketch3.addConstraint(Sketcher.Constraint("Horizontal", 0, 2, 4, 2))
sketch3.addConstraint(Sketcher.Constraint("Horizontal", 4, 2, 6, 2))
sketch3.addConstraint(Sketcher.Constraint("Horizontal", 3, 2, 7, 2))
sketch3.addConstraint(Sketcher.Constraint("Horizontal", 2, 2, 8, 2))
sketch3.addConstraint(Sketcher.Constraint("Horizontal", 7, 2, 9, 2))
sketch3.addConstraint(Sketcher.Constraint("Horizontal", 6, 2, 10, 2))
sketch3.addConstraint(Sketcher.Constraint("Horizontal", 13, 2, 15, 2))
sketch3.addConstraint(Sketcher.Constraint("Horizontal", 12, 2, 16, 2))
sketch3.addConstraint(Sketcher.Constraint("Horizontal", 19, 2, 21, 2))
sketch3.addConstraint(Sketcher.Constraint("Horizontal", 18, 2, 22, 2))
sketch3.addConstraint(Sketcher.Constraint("Vertical", 2, 2, 5, 2))
sketch3.addConstraint(Sketcher.Constraint("Equal", 10, 13))
sketch3.addConstraint(Sketcher.Constraint("Equal", 16, 19))
sketch3.addConstraint(Sketcher.Constraint("Equal", 11, 12))
sketch3.addConstraint(Sketcher.Constraint("Equal", 17, 18))
sketch3.addConstraint(Sketcher.Constraint("Angle", 0, Q("150 deg")))
sketch3.addConstraint(Sketcher.Constraint("DistanceX", 2, 2, -1, 1, 62.0))
sketch3.addConstraint(Sketcher.Constraint("DistanceX", 8, 2, -1, 1, 32.0))
sketch3.addConstraint(Sketcher.Constraint("DistanceX", -1, 1, 14, 2, 58.0))
sketch3.addConstraint(Sketcher.Constraint("DistanceX", -1, 1, 20, 2, 73.0))
sketch3.addConstraint(Sketcher.Constraint("DistanceX", 1, 2, 3, 2, 25.0))
sketch3.addConstraint(Sketcher.Constraint("DistanceY", -1, 1, 2, 2, 31.5))
sketch3.addConstraint(Sketcher.Constraint("DistanceY", 23, 2, -1, 1, 75.3098))
sketch3.addConstraint(Sketcher.Constraint("DistanceY", 1, 1, 1, 2, 14.433757))
sketch3.addConstraint(Sketcher.Constraint("DistanceY", 12, 2, -1, 1, 42.112159))
pocket2 = body.newObject("PartDesign::Pocket", "Pocket001")
pocket2.Profile = sketch3
pocket2.Type = "ThroughAll"
pocket2.Reversed = True

# Sketch on XZ plane
sketch4 = body.newObject("Sketcher::SketchObject", "Sketch003")
sketch4.AttachmentSupport = (doc.getObject("XZ_Plane"), [""])
sketch4.MapMode = "FlatFace"
sketch4.AttachmentOffset = App.Placement(Vector(0, 0, -3), App.Rotation())
sketch4.addGeometry(Part.LineSegment(Vector(44, -63, 0), Vector(37, -76, 0)), False)
sketch4.addGeometry(Part.LineSegment(Vector(37, -76, 0), Vector(22, -76, 0)), False)
sketch4.addGeometry(Part.LineSegment(Vector(22, -76, 0), Vector(15, -63, 0)), False)
sketch4.addGeometry(Part.LineSegment(Vector(15, -63, 0), Vector(22, -50, 0)), False)
sketch4.addGeometry(Part.LineSegment(Vector(22, -50, 0), Vector(37, -50, 0)), False)
sketch4.addGeometry(Part.LineSegment(Vector(37, -50, 0), Vector(44, -63, 0)), False)
sketch4.addConstraint(Sketcher.Constraint("Coincident", 0, 2, 1, 1))
sketch4.addConstraint(Sketcher.Constraint("Coincident", 1, 2, 2, 1))
sketch4.addConstraint(Sketcher.Constraint("Coincident", 2, 2, 3, 1))
sketch4.addConstraint(Sketcher.Constraint("Coincident", 3, 2, 4, 1))
sketch4.addConstraint(Sketcher.Constraint("Coincident", 4, 2, 5, 1))
sketch4.addConstraint(Sketcher.Constraint("Coincident", 5, 2, 0, 1))
sketch4.addConstraint(Sketcher.Constraint("Horizontal", 1))
sketch4.addConstraint(Sketcher.Constraint("Horizontal", 4))
sketch4.addConstraint(Sketcher.Constraint("Parallel", 0, 3))
sketch4.addConstraint(Sketcher.Constraint("Parallel", 2, 5))
sketch4.addConstraint(Sketcher.Constraint("Horizontal", 2, 2, 5, 2))
sketch4.addConstraint(Sketcher.Constraint("Vertical", 1, 2, 3, 2))
sketch4.addConstraint(Sketcher.Constraint("Vertical", 0, 2, 4, 2))
sketch4.addConstraint(Sketcher.Constraint("Angle", 0, Q("-120 deg")))
sketch4.addConstraint(Sketcher.Constraint("DistanceY", 2, 2, -1, 1, 63.0))
sketch4.addConstraint(Sketcher.Constraint("DistanceY", 1, 2, 3, 2, 25.0))
sketch4.addConstraint(Sketcher.Constraint("DistanceX", 1, 2, 1, 1, 14.433757))
sketch4.addConstraint(Sketcher.Constraint("DistanceX", -1, 1, 0, 2, 36.716878))
pocket3 = body.newObject("PartDesign::Pocket", "Pocket002")
pocket3.Profile = sketch4
pocket3.Length = 10
pocket3.Reversed = True
doc.recompute()

fillet = body.newObject("PartDesign::Fillet", "Fillet")
fillet.Base = (pocket3, edges_at(pocket3, [
    (28, 1.5, -3.811),
    (13, 1.5, -12.471),
    (13, 1.5, -29.792),
    (28, 1.5, -38.452),
    (43, 1.5, -29.792),
    (43, 1.5, -12.471),
    (-42, 1.5, -3.811),
    (-57, 1.5, -12.471),
    (-57, 1.5, -29.792),
    (-42, 1.5, -38.452),
    (-27, 1.5, -29.792),
    (-27, 1.5, -12.471),
    (-24.5, 1.5, -34.122),
    (-39.5, 1.5, -42.782),
    (-39.5, 1.5, -60.103),
    (-24.5, 1.5, -68.763),
    (-9.5, 1.5, -60.103),
    (-9.5, 1.5, -42.782),
    (-59.5, 1.5, -34.122),
    (-74.5, 1.5, -42.782),
    (-74.5, 1.5, -60.103),
    (-59.5, 1.5, -68.763),
    (-44.5, 1.5, -60.103),
    (-44.5, 1.5, -42.782),
    (45.5, 1.5, 26.5),
    (30.5, 1.5, 17.84),
    (30.5, 1.5, 0.519),
    (45.5, 1.5, -8.141),
    (60.5, 1.5, 0.519),
    (60.5, 1.5, 17.84),
    (-42, 1.5, -64.433),
    (-57, 1.5, -73.093),
    (-57, 1.5, -90.413),
    (-42, 1.5, -99.074),
    (-27, 1.5, -90.413),
    (-27, 1.5, -73.093),
    (-62, 1.5, 2.632),
    (-49.5, 1.5, 9.849),
    (-49.5, 1.5, 24.283),
    (-62, 1.5, 31.5),
    (-74.5, 1.5, 24.283),
    (-74.5, 1.5, 9.849),
    (73, 1.5, -75.31),
    (85.5, 1.5, -68.093),
    (85.5, 1.5, -53.659),
    (73, 1.5, -46.442),
    (60.5, 1.5, -53.659),
    (60.5, 1.5, -68.093),
    (58, 1.5, -49.329),
    (70.5, 1.5, -42.112),
    (70.5, 1.5, -27.678),
    (58, 1.5, -20.462),
    (45.5, 1.5, -27.678),
    (45.5, 1.5, -42.112),
    (-32, 1.5, 2.632),
    (-19.5, 1.5, 9.849),
    (-19.5, 1.5, 24.283),
    (-32, 1.5, 31.5),
    (-44.5, 1.5, 24.283),
    (-44.5, 1.5, 9.849),
    (43.934, 1.5, -63),
    (36.717, 1.5, -50.5),
    (22.283, 1.5, -50.5),
    (15.066, 1.5, -63),
    (22.283, 1.5, -75.5),
    (36.717, 1.5, -75.5),
]))
fillet.Radius = 5
doc.recompute()

fillet2 = body.newObject("PartDesign::Fillet", "Fillet001")
fillet2.Base = (fillet, edges_at(fillet, [
    (-79.5, 1.5, -116),
    (-36.5, 1.5, -116),
    (-36.5, 1.5, -101),
    (0, 1.5, -101),
    (0, 1.5, -80.5),
    (89.5, 1.5, -80.5),
    (89.5, 1.5, 46.5),
    (35.5, 1.5, 46.5),
    (35.5, 1.5, 31.5),
    (15, 1.5, -3),
    (0, 1.5, -3),
    (-20, 1.5, 31.5),
    (-20, 1.5, 46.5),
    (-79.5, 1.5, 46.5),
]))
fillet2.Radius = 3

doc.recompute()
